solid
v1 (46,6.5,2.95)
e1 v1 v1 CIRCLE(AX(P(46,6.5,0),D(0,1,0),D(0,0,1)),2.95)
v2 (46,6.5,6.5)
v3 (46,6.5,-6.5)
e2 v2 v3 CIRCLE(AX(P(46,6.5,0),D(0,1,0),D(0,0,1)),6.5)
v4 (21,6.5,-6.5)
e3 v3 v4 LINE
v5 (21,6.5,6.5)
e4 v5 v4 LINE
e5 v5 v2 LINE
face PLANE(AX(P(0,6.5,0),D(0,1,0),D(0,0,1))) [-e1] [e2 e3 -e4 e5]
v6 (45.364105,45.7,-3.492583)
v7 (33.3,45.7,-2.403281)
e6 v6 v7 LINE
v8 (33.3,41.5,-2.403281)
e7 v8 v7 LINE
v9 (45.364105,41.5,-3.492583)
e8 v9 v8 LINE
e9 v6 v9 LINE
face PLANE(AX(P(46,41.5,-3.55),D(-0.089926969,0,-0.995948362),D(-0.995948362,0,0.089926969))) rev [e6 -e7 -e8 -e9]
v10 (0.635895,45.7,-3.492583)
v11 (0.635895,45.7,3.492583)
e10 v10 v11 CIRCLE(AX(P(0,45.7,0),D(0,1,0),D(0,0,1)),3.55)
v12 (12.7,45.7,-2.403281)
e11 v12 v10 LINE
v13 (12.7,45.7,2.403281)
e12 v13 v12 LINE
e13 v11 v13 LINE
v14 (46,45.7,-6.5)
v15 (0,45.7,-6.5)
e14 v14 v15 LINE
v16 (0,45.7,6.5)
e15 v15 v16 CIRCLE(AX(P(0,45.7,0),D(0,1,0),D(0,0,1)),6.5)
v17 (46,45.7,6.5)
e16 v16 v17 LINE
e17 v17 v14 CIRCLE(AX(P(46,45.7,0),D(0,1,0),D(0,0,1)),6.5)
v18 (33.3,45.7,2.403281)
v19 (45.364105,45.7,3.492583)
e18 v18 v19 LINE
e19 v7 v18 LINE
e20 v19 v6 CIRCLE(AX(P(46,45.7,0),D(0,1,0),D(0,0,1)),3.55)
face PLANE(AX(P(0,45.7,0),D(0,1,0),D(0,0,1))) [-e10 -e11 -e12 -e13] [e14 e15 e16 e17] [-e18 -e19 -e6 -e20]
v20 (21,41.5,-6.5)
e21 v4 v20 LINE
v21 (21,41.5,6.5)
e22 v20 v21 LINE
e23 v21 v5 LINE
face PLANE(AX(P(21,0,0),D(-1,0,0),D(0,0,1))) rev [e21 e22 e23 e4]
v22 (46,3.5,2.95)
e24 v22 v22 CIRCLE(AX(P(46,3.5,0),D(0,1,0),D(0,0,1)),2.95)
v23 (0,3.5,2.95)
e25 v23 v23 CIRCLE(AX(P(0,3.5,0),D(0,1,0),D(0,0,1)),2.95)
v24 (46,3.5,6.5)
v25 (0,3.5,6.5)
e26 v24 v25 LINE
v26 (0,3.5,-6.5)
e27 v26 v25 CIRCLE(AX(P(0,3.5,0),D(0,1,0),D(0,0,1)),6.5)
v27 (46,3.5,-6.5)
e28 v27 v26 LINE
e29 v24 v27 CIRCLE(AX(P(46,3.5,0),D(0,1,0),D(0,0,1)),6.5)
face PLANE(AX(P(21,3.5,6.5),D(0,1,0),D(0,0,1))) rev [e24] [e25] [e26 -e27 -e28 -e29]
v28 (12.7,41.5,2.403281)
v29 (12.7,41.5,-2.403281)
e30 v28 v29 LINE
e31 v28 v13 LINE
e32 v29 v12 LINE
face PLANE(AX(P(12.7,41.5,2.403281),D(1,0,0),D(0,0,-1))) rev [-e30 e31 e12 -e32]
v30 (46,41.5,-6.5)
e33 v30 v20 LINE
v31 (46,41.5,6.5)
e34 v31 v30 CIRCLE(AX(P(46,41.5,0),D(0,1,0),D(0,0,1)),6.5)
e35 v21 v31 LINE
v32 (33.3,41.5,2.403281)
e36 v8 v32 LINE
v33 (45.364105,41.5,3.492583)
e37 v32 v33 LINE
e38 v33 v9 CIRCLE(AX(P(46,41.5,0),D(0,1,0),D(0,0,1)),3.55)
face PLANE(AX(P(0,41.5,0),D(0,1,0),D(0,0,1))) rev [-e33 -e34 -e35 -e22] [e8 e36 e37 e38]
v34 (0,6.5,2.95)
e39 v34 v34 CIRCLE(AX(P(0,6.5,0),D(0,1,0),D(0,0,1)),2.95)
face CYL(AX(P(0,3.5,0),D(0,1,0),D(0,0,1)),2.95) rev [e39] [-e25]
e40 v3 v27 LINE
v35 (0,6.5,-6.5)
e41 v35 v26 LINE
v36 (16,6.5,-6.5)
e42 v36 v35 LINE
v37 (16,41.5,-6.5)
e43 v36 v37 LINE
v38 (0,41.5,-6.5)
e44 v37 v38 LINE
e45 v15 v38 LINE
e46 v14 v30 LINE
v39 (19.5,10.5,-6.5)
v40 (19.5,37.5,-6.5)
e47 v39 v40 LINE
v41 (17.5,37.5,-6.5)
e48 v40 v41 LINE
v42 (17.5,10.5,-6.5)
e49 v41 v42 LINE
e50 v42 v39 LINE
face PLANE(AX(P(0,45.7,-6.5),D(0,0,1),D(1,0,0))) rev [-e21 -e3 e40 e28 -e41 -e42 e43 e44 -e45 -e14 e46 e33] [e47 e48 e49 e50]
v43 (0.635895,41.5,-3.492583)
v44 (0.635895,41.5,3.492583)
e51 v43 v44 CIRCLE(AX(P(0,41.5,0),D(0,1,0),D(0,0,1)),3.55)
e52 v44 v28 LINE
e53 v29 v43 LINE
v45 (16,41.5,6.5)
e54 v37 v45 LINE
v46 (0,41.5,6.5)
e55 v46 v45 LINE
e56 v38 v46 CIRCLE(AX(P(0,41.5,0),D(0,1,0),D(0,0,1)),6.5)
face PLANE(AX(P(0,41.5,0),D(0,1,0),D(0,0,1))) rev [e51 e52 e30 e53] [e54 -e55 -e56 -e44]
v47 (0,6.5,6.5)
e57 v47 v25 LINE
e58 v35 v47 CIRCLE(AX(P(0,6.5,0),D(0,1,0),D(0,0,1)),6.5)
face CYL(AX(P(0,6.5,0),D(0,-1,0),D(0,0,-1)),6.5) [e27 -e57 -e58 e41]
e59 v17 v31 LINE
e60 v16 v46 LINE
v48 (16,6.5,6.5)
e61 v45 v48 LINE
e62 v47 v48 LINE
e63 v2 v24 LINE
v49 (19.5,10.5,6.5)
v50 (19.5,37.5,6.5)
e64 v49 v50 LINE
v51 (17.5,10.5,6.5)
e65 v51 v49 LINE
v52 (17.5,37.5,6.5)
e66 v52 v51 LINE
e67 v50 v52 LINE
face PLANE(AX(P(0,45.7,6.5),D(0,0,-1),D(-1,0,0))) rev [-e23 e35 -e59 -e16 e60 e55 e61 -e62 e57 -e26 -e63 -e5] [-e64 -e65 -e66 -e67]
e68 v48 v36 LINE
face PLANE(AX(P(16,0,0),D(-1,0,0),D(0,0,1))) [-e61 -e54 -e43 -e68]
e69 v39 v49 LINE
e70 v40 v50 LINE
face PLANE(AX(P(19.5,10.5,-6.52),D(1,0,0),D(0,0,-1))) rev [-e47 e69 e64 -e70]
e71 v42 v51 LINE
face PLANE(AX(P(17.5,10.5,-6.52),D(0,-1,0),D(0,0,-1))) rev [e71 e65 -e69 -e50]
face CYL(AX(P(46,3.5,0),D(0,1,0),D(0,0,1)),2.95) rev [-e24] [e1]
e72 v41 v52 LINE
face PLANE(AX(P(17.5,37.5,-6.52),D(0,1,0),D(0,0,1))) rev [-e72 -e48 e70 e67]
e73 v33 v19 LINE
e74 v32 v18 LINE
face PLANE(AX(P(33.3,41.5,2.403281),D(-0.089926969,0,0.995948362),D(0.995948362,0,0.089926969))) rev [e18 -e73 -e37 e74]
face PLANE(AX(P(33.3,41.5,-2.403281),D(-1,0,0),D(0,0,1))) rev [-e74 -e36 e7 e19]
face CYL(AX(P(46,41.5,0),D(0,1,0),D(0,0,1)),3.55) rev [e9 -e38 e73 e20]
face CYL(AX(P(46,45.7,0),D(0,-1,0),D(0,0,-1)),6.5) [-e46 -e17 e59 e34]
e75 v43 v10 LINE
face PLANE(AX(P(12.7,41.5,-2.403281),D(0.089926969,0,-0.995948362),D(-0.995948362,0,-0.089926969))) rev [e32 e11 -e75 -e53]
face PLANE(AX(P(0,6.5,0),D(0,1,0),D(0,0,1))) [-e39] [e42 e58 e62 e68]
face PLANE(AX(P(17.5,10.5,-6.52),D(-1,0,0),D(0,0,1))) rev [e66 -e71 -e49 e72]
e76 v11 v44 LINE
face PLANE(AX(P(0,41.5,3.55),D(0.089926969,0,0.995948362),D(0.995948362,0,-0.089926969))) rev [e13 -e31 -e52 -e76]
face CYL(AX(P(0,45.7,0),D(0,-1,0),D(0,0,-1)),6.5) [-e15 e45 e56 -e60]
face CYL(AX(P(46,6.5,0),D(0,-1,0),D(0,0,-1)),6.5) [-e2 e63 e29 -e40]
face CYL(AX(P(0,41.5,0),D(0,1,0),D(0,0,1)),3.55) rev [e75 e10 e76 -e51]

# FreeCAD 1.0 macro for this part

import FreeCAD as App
import Part
import Sketcher
from FreeCAD import Vector

doc = App.newDocument("Part")
body = doc.addObject("PartDesign::Body", "Body")

sketch1 = body.newObject("Sketcher::SketchObject", "Sketch")
sketch1.AttachmentSupport = (doc.getObject("XZ_Plane"), [""])
sketch1.MapMode = "FlatFace"
sketch1.AttachmentOffset = App.Placement(Vector(0, 0, -43.6), App.Rotation())
sketch1.addGeometry(Part.Circle(Vector(0, 0, 0), Vector(0, 0, 1), 6), False)
sketch1.addConstraint([
    Sketcher.Constraint("Coincident", 0, 3, -1, 1),
    Sketcher.Constraint("Diameter", 0, 13.0),
])
pad1 = body.newObject("PartDesign::Pad", "Pad")
pad1.Profile = sketch1
pad1.Length = 4.2
pad1.Midplane = True
body2 = doc.addObject("PartDesign::Body", "Body001")

sketch2 = body2.newObject("Sketcher::SketchObject", "Sketch001")
sketch2.AttachmentSupport = (doc.getObject("XZ_Plane001"), [""])
sketch2.MapMode = "FlatFace"
sketch2.AttachmentOffset = App.Placement(Vector(0, 0, -43.6), App.Rotation())
sketch2.addGeometry(Part.Circle(Vector(46, 0, 0), Vector(0, 0, 1), 6), False)
sketch2.addConstraint([
    Sketcher.Constraint("PointOnObject", 0, 3, -1),
    Sketcher.Constraint("Diameter", 0, 13.0),
    Sketcher.Constraint("DistanceX", -1, 1, 0, 3, 46.0),
])
pad2 = body2.newObject("PartDesign::Pad", "Pad001")
pad2.Profile = sketch2
pad2.Length = 4.2
pad2.Midplane = True
body.AllowCompound = True
doc.recompute()

boolean = body.newObject("PartDesign::Boolean", "Boolean")
boolean.Type = "Fuse"
boolean.addObjects([body2])

sketch3 = body.newObject("Sketcher::SketchObject", "Sketch002")
sketch3.AttachmentSupport = (doc.getObject("XZ_Plane"), [""])
sketch3.MapMode = "FlatFace"
sketch3.AttachmentOffset = App.Placement(Vector(0, 0, -43.6), App.Rotation())
sketch3.addGeometry([
    Part.LineSegment(Vector(0, -6, 0), Vector(0, 6, 0)),
    Part.LineSegment(Vector(0, 6, 0), Vector(46, 6, 0)),
    Part.LineSegment(Vector(46, 6, 0), Vector(46, -6, 0)),
    Part.LineSegment(Vector(46, -6, 0), Vector(0, -6, 0)),
], False)
sketch3.addConstraint([
    Sketcher.Constraint("Coincident", 0, 2, 1, 1),
    Sketcher.Constraint("Coincident", 1, 2, 2, 1),
    Sketcher.Constraint("Coincident", 2, 2, 3, 1),
    Sketcher.Constraint("Coincident", 3, 2, 0, 1),
    Sketcher.Constraint("Vertical", 0),
    Sketcher.Constraint("Horizontal", 1),
    Sketcher.Constraint("Vertical", 2),
    Sketcher.Constraint("Horizontal", 3),
    Sketcher.Constraint("Symmetric", 0, 2, 3, 2, -1, 1),
    Sketcher.Constraint("DistanceX", 1, 1, 1, 2, 46.0),
    Sketcher.Constraint("DistanceY", 0, 1, 0, 2, 13.0),
])
pad3 = body.newObject("PartDesign::Pad", "Pad002")
pad3.Profile = sketch3
pad3.Length = 4.2
pad3.Midplane = True

sketch4 = body.newObject("Sketcher::SketchObject", "Sketch003")
sketch4.AttachmentSupport = (doc.getObject("XZ_Plane"), [""])
sketch4.MapMode = "FlatFace"
sketch4.AttachmentOffset = App.Placement(Vector(0, 0, -43.6), App.Rotation())
sketch4.addGeometry([
    Part.Circle(Vector(0, 0, 0), Vector(0, 0, 1), 3.5),
    Part.Circle(Vector(46, 0, 0), Vector(0, 0, 1), 3.5),
], False)
sketch4.addConstraint([
    Sketcher.Constraint("Coincident", 0, 3, -1, 1),
    Sketcher.Constraint("Equal", 0, 1),
    Sketcher.Constraint("PointOnObject", 1, 3, -1),
    Sketcher.Constraint("Diameter", 0, 7.1),
    Sketcher.Constraint("DistanceX", -1, 1, 1, 3, 46.0),
])
pocket1 = body.newObject("PartDesign::Pocket", "Pocket")
pocket1.Profile = sketch4
pocket1.Length = 4.2
pocket1.Midplane = True

sketch5 = body.newObject("Sketcher::SketchObject", "Sketch004")
sketch5.AttachmentSupport = (doc.getObject("XZ_Plane"), [""])
sketch5.MapMode = "FlatFace"
sketch5.AttachmentOffset = App.Placement(Vector(0, 0, -43.6), App.Rotation())
sketch5.addGeometry([
    Part.LineSegment(Vector(0, 3.5, 0), Vector(12.7, 2.4, 0)),
    Part.LineSegment(Vector(12.7, 2.4, 0), Vector(12.7, -2.4, 0)),
    Part.LineSegment(Vector(12.7, -2.4, 0), Vector(0, -3.5, 0)),
    Part.LineSegment(Vector(0, -3.5, 0), Vector(0, 3.5, 0)),
    Part.LineSegment(Vector(46, -3.5, 0), Vector(33.3, -2.4, 0)),
    Part.LineSegment(Vector(33.3, -2.4, 0), Vector(33.3, 2.4, 0)),
    Part.LineSegment(Vector(33.3, 2.4, 0), Vector(46, 3.5, 0)),
    Part.LineSegment(Vector(46, 3.5, 0), Vector(46, -3.5, 0)),
], False)
sketch5.addConstraint([
    Sketcher.Constraint("Coincident", 0, 2, 1, 1),
    Sketcher.Constraint("Coincident", 1, 2, 2, 1),
    Sketcher.Constraint("Coincident", 2, 2, 3, 1),
    Sketcher.Constraint("Coincident", 3, 2, 0, 1),
    Sketcher.Constraint("Coincident", 4, 2, 5, 1),
    Sketcher.Constraint("Coincident", 5, 2, 6, 1),
    Sketcher.Constraint("Coincident", 6, 2, 7, 1),
    Sketcher.Constraint("Coincident", 7, 2, 4, 1),
    Sketcher.Constraint("Vertical", 1),
    Sketcher.Constraint("Vertical", 3),
    Sketcher.Constraint("Vertical", 5),
    Sketcher.Constraint("Vertical", 7),
    Sketcher.Constraint("Symmetric", 2, 2, 3, 2, -1, 1),
    Sketcher.Constraint("Parallel", 0, 4),
    Sketcher.Constraint("Parallel", 2, 6),
    Sketcher.Constraint("Horizontal", 1, 2, 4, 2),
    Sketcher.Constraint("Horizontal", 0, 2, 5, 2),
    Sketcher.Constraint("Horizontal", 3, 2, 6, 2),
    Sketcher.Constraint("Horizontal", 2, 2, 7, 2),
    Sketcher.Constraint("DistanceY", 3, 1, 3, 2, 7.1),
    Sketcher.Constraint("DistanceX", -1, 1, 6, 2, 46.0),
    Sketcher.Constraint("DistanceX", -1, 1, 0, 2, 12.7),
    Sketcher.Constraint("DistanceY", 1, 2, 1, 1, 4.806563),
])
pocket2 = body.newObject("PartDesign::Pocket", "Pocket001")
pocket2.Profile = sketch5
pocket2.Length = 4.2
pocket2.Midplane = True
body3 = doc.addObject("PartDesign::Body", "Body002")

sketch6 = body3.newObject("Sketcher::SketchObject", "Sketch005")
sketch6.AttachmentSupport = (doc.getObject("XZ_Plane002"), [""])
sketch6.MapMode = "FlatFace"
sketch6.AttachmentOffset = App.Placement(Vector(0, 0, -5), App.Rotation())
sketch6.addGeometry(Part.Circle(Vector(0, 0, 0), Vector(0, 0, 1), 6), False)
sketch6.addConstraint([
    Sketcher.Constraint("Coincident", 0, 3, -1, 1),
    Sketcher.Constraint("Diameter", 0, 13.0),
])
pad4 = body3.newObject("PartDesign::Pad", "Pad003")
pad4.Profile = sketch6
pad4.Length = 3
pad4.Midplane = True
body4 = doc.addObject("PartDesign::Body", "Body003")

sketch7 = body4.newObject("Sketcher::SketchObject", "Sketch006")
sketch7.AttachmentSupport = (doc.getObject("XZ_Plane003"), [""])
sketch7.MapMode = "FlatFace"
sketch7.AttachmentOffset = App.Placement(Vector(0, 0, -5), App.Rotation())
sketch7.addGeometry(Part.Circle(Vector(46, 0, 0), Vector(0, 0, 1), 6), False)
sketch7.addConstraint([
    Sketcher.Constraint("PointOnObject", 0, 3, -1),
    Sketcher.Constraint("Diameter", 0, 13.0),
    Sketcher.Constraint("DistanceX", -1, 1, 0, 3, 46.0),
])
pad5 = body4.newObject("PartDesign::Pad", "Pad004")
pad5.Profile = sketch7
pad5.Length = 3
pad5.Midplane = True
body3.AllowCompound = True
doc.recompute()

boolean2 = body3.newObject("PartDesign::Boolean", "Boolean001")
boolean2.Type = "Fuse"
boolean2.addObjects([body4])

sketch8 = body3.newObject("Sketcher::SketchObject", "Sketch007")
sketch8.AttachmentSupport = (doc.getObject("XZ_Plane002"), [""])
sketch8.MapMode = "FlatFace"
sketch8.AttachmentOffset = App.Placement(Vector(0, 0, -5), App.Rotation())
sketch8.addGeometry([
    Part.LineSegment(Vector(0, -6, 0), Vector(0, 6, 0)),
    Part.LineSegment(Vector(0, 6, 0), Vector(46, 6, 0)),
    Part.LineSegment(Vector(46, 6, 0), Vector(46, -6, 0)),
    Part.LineSegment(Vector(46, -6, 0), Vector(0, -6, 0)),
], False)
sketch8.addConstraint([
    Sketcher.Constraint("Coincident", 0, 2, 1, 1),
    Sketcher.Constraint("Coincident", 1, 2, 2, 1),
    Sketcher.Constraint("Coincident", 2, 2, 3, 1),
    Sketcher.Constraint("Coincident", 3, 2, 0, 1),
    Sketcher.Constraint("Vertical", 0),
    Sketcher.Constraint("Horizontal", 1),
    Sketcher.Constraint("Vertical", 2),
    Sketcher.Constraint("Horizontal", 3),
    Sketcher.Constraint("Symmetric", 0, 2, 3, 2, -1, 1),
    Sketcher.Constraint("DistanceX", 1, 1, 1, 2, 46.0),
    Sketcher.Constraint("DistanceY", 0, 1, 0, 2, 13.0),
])
pad6 = body3.newObject("PartDesign::Pad", "Pad005")
pad6.Profile = sketch8
pad6.Length = 3
pad6.Midplane = True

sketch9 = body3.newObject("Sketcher::SketchObject", "Sketch008")
sketch9.AttachmentSupport = (doc.getObject("XZ_Plane002"), [""])
sketch9.MapMode = "FlatFace"
sketch9.AttachmentOffset = App.Placement(Vector(0, 0, -5), App.Rotation())
sketch9.addGeometry([
    Part.Circle(Vector(0, 0, 0), Vector(0, 0, 1), 3),
    Part.Circle(Vector(46, 0, 0), Vector(0, 0, 1), 3),
], False)
sketch9.addConstraint([
    Sketcher.Constraint("Coincident", 0, 3, -1, 1),
    Sketcher.Constraint("Equal", 0, 1),
    Sketcher.Constraint("PointOnObject", 1, 3, -1),
    Sketcher.Constraint("Diameter", 0, 5.9),
    Sketcher.Constraint("DistanceX", -1, 1, 1, 3, 46.0),
])
pocket3 = body3.newObject("PartDesign::Pocket", "Pocket002")
pocket3.Profile = sketch9
pocket3.Length = 3
pocket3.Midplane = True
body.AllowCompound = True
doc.recompute()

boolean3 = body.newObject("PartDesign::Boolean", "Boolean002")
boolean3.Type = "Fuse"
boolean3.addObjects([body3])

sketch10 = body.newObject("Sketcher::SketchObject", "Sketch009")
sketch10.AttachmentSupport = (doc.getObject("YZ_Plane"), [""])
sketch10.MapMode = "FlatFace"
sketch10.AttachmentOffset = App.Placement(Vector(0, 0, 18.5), App.Rotation())
sketch10.addGeometry([
    Part.LineSegment(Vector(46, 6, 0), Vector(4, 6, 0)),
    Part.LineSegment(Vector(4, 6, 0), Vector(4, -6, 0)),
    Part.LineSegment(Vector(4, -6, 0), Vector(46, -6, 0)),
    Part.LineSegment(Vector(46, -6, 0), Vector(46, 6, 0)),
], False)
sketch10.addConstraint([
    Sketcher.Constraint("Coincident", 0, 2, 1, 1),
    Sketcher.Constraint("Coincident", 1, 2, 2, 1),
    Sketcher.Constraint("Coincident", 2, 2, 3, 1),
    Sketcher.Constraint("Coincident", 3, 2, 0, 1),
    Sketcher.Constraint("Horizontal", 0),
    Sketcher.Constraint("Vertical", 1),
    Sketcher.Constraint("Horizontal", 2),
    Sketcher.Constraint("Vertical", 3),
    Sketcher.Constraint("DistanceY", 1, 2, 1, 1, 13.0),
    Sketcher.Constraint("DistanceX", 0, 2, 0, 1, 42.2),
    Sketcher.Constraint("DistanceX", -1, 1, 0, 2, 3.5),
    Sketcher.Constraint("DistanceY", -1, 1, 0, 2, 6.5),
])
pad7 = body.newObject("PartDesign::Pad", "Pad006")
pad7.Profile = sketch10
pad7.Length = 5
pad7.Midplane = True

sketch11 = body.newObject("Sketcher::SketchObject", "Sketch010")
sketch11.AttachmentSupport = (doc.getObject("XY_Plane"), [""])
sketch11.MapMode = "FlatFace"
sketch11.AttachmentOffset = App.Placement(Vector(0, 0, -0.01), App.Rotation())
sketch11.addGeometry([
    Part.LineSegment(Vector(17.5, 37.5, 0), Vector(17.5, 10.5, 0)),
    Part.LineSegment(Vector(17.5, 10.5, 0), Vector(19.5, 10.5, 0)),
    Part.LineSegment(Vector(19.5, 10.5, 0), Vector(19.5, 37.5, 0)),
    Part.LineSegment(Vector(19.5, 37.5, 0), Vector(17.5, 37.5, 0)),
], False)
sketch11.addConstraint([
    Sketcher.Constraint("Coincident", 0, 2, 1, 1),
    Sketcher.Constraint("Coincident", 1, 2, 2, 1),
    Sketcher.Constraint("Coincident", 2, 2, 3, 1),
    Sketcher.Constraint("Coincident", 3, 2, 0, 1),
    Sketcher.Constraint("Vertical", 0),
    Sketcher.Constraint("Horizontal", 1),
    Sketcher.Constraint("Vertical", 2),
    Sketcher.Constraint("Horizontal", 3),
    Sketcher.Constraint("DistanceX", 1, 1, 1, 2, 2.0),
    Sketcher.Constraint("DistanceY", 0, 2, 0, 1, 27.0),
    Sketcher.Constraint("DistanceX", -1, 1, 0, 2, 17.5),
    Sketcher.Constraint("DistanceY", -1, 1, 0, 2, 10.5),
])
pocket4 = body.newObject("PartDesign::Pocket", "Pocket003")
pocket4.Profile = sketch11
pocket4.Length = 13.02
pocket4.Midplane = True

doc.recompute()
